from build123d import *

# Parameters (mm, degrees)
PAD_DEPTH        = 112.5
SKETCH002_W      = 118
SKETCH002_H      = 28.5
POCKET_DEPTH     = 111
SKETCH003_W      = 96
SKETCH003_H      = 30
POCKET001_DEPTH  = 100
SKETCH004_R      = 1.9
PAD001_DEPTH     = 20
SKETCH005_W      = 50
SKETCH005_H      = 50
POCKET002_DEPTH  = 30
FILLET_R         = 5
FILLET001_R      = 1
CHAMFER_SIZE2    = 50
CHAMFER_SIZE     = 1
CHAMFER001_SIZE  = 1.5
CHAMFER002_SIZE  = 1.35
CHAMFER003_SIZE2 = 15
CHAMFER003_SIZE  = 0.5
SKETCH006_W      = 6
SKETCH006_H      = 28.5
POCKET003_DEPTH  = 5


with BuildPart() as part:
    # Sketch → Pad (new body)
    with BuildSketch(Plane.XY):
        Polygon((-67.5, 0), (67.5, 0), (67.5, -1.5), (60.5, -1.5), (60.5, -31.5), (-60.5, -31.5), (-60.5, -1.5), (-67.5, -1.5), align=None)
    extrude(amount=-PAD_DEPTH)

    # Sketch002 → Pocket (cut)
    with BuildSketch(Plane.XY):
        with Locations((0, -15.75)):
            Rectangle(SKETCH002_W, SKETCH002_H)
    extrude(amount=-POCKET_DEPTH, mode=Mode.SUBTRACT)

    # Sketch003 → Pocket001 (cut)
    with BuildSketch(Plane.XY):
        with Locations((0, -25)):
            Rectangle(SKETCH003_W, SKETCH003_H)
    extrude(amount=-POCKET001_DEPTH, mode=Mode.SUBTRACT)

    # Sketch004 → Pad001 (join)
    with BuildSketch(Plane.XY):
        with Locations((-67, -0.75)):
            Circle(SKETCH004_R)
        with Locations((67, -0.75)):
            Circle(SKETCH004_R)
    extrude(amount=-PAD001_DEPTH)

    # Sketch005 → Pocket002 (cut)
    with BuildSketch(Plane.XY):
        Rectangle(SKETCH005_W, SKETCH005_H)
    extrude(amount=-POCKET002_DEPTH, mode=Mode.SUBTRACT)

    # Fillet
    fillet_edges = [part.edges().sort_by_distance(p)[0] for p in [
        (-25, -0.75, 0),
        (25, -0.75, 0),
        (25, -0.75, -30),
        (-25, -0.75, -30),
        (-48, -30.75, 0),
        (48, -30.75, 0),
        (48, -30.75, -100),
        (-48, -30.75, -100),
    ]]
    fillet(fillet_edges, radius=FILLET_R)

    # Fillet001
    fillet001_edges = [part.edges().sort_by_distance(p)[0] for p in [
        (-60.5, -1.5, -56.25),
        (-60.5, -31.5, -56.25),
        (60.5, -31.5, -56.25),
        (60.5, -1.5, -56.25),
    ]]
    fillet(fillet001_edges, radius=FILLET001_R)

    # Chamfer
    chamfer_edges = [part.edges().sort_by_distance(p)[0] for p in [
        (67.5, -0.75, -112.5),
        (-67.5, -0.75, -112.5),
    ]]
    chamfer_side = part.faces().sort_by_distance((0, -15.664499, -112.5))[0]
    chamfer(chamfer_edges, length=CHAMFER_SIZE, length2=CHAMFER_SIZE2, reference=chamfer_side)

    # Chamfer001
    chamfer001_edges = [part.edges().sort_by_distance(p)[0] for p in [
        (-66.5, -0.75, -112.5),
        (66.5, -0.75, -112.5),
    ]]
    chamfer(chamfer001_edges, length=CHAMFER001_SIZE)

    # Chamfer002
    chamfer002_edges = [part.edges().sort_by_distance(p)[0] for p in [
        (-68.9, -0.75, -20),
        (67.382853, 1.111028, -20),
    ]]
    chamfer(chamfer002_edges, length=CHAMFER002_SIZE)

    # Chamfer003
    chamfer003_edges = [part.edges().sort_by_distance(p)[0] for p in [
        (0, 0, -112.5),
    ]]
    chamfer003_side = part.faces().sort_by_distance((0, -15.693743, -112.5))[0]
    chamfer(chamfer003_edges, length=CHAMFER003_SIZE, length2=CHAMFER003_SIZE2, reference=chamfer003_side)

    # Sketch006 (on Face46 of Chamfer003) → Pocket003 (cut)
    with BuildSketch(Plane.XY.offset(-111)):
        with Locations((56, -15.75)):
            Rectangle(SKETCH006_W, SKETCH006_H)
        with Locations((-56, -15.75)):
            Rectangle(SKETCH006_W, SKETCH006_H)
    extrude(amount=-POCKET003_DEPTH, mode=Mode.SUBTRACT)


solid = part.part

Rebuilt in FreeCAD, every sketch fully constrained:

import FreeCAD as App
import Part
import Sketcher


def edges_at(feature, points):
    """Names of the edges that pass closest to the given points."""
    edges = feature.Shape.Edges
    near = lambda p: min(range(len(edges)), key=lambda i: edges[i].distToShape(Part.Vertex(*p))[0])
    return sorted({f"Edge{near(p) + 1}" for p in points})

doc = App.newDocument("Part")
params = doc.addObject("Spreadsheet::Sheet", "Params")
for row, (alias, value) in enumerate([
    ("sketch1_width", "135 mm"),
    ("sketch1_width2", "7 mm"),
    ("sketch1_height", "30 mm"),
    ("sketch1_height2", "1.5 mm"),
    ("pad1_length", "112.5 mm"),
    ("sketch2_width", "118 mm"),
    ("sketch2_height", "28.5 mm"),
    ("pocket1_length", "111 mm"),
    ("sketch3_width", "96 mm"),
    ("sketch3_height", "30 mm"),
    ("pocket2_length", "100 mm"),
    ("sketch4_diameter", "3.8 mm"),
    ("pad2_length", "20 mm"),
    ("sketch5_width", "50 mm"),
    ("pocket3_length", "30 mm"),
    ("fillet_radius", "5 mm"),
    ("fillet2_radius", "1 mm"),
    ("chamfer_size", "1 mm"),
    ("chamfer_size2", "50 mm"),
    ("chamfer2_size", "1.5 mm"),
    ("chamfer3_size", "1.35 mm"),
    ("chamfer4_size", "0.5 mm"),
    ("chamfer4_size2", "15 mm"),
    ("sketch6_width", "6 mm"),
    ("sketch6_height", "28.5 mm"),
    ("pocket4_length", "5 mm"),
], start=1):
    params.set(f"A{row}", alias)
    params.set(f"B{row}", "=" + value)
    params.setAlias(f"B{row}", alias)

body = doc.addObject("PartDesign::Body", "Body")

# Sketch on XY plane
sketch1 = doc.addObject("Sketcher::SketchObject", "Sketch")
body.addObject(sketch1)
sketch1.AttachmentSupport = (doc.XY_Plane, [""])
sketch1.MapMode = "FlatFace"
sketch1.addGeometry([
    Part.LineSegment(App.Vector(67.5, 0, 0), App.Vector(-67.5, 0, 0)),  # 0
    Part.LineSegment(App.Vector(-67.5, 0, 0), App.Vector(-67.5, -1.5, 0)),  # 1
    Part.LineSegment(App.Vector(-67.5, -1.5, 0), App.Vector(-60.5, -1.5, 0)),  # 2
    Part.LineSegment(App.Vector(-60.5, -1.5, 0), App.Vector(-60.5, -31.5, 0)),  # 3
    Part.LineSegment(App.Vector(-60.5, -31.5, 0), App.Vector(60.5, -31.5, 0)),  # 4
    Part.LineSegment(App.Vector(60.5, -31.5, 0), App.Vector(60.5, -1.5, 0)),  # 5
    Part.LineSegment(App.Vector(60.5, -1.5, 0), App.Vector(67.5, -1.5, 0)),  # 6
    Part.LineSegment(App.Vector(67.5, -1.5, 0), App.Vector(67.5, 0, 0)),  # 7
], False)
sketch1.addConstraint([
    Sketcher.Constraint("Coincident", 0, 2, 1, 1),
    Sketcher.Constraint("Coincident", 1, 2, 2, 1),
    Sketcher.Constraint("Coincident", 2, 2, 3, 1),
    Sketcher.Constraint("Coincident", 3, 2, 4, 1),
    Sketcher.Constraint("Coincident", 4, 2, 5, 1),
    Sketcher.Constraint("Coincident", 5, 2, 6, 1),
    Sketcher.Constraint("Coincident", 6, 2, 7, 1),
    Sketcher.Constraint("Coincident", 7, 2, 0, 1),
    Sketcher.Constraint("Horizontal", 0),
    Sketcher.Constraint("Vertical", 1),
    Sketcher.Constraint("Horizontal", 2),
    Sketcher.Constraint("Vertical", 3),
    Sketcher.Constraint("Horizontal", 4),
    Sketcher.Constraint("Vertical", 5),
    Sketcher.Constraint("Horizontal", 6),
    Sketcher.Constraint("Vertical", 7),
    Sketcher.Constraint("Symmetric", 0, 2, 7, 2, -1, 1),
    Sketcher.Constraint("Symmetric", 2, 2, 5, 2, -2),
    Sketcher.Constraint("DistanceX", 0, 2, 0, 1, 135.0),
    Sketcher.Constraint("DistanceX", 2, 1, 2, 2, 7.0),
    Sketcher.Constraint("DistanceY", 3, 2, 3, 1, 30.0),
    Sketcher.Constraint("DistanceY", 1, 2, 1, 1, 1.5),
])
sketch1.setExpression("Constraints[18]", "Params.sketch1_width")
sketch1.setExpression("Constraints[19]", "Params.sketch1_width2")
sketch1.setExpression("Constraints[20]", "Params.sketch1_height")
sketch1.setExpression("Constraints[21]", "Params.sketch1_height2")
pad1 = doc.addObject("PartDesign::Pad", "Pad")
body.addObject(pad1)
pad1.Profile = sketch1
pad1.setExpression("Length", "Params.pad1_length")
pad1.Reversed = True

# Sketch on XY plane
sketch2 = doc.addObject("Sketcher::SketchObject", "Sketch001")
body.addObject(sketch2)
sketch2.AttachmentSupport = (doc.XY_Plane, [""])
sketch2.MapMode = "FlatFace"
sketch2.addGeometry([
    Part.LineSegment(App.Vector(-59, -2, 0), App.Vector(-59, -30, 0)),
    Part.LineSegment(App.Vector(-59, -30, 0), App.Vector(59, -30, 0)),
    Part.LineSegment(App.Vector(59, -30, 0), App.Vector(59, -2, 0)),
    Part.LineSegment(App.Vector(59, -2, 0), App.Vector(-59, -2, 0)),
], False)
sketch2.addConstraint([
    Sketcher.Constraint("Coincident", 0, 2, 1, 1),
    Sketcher.Constraint("Coincident", 1, 2, 2, 1),
    Sketcher.Constraint("Coincident", 2, 2, 3, 1),
    Sketcher.Constraint("Coincident", 3, 2, 0, 1),
    Sketcher.Constraint("Vertical", 0),
    Sketcher.Constraint("Horizontal", 1),
    Sketcher.Constraint("Vertical", 2),
    Sketcher.Constraint("Horizontal", 3),
    Sketcher.Constraint("DistanceX", 1, 1, 1, 2, 118.0),
    Sketcher.Constraint("DistanceY", 0, 2, 0, 1, 28.5),
    Sketcher.Constraint("DistanceX", 0, 2, -1, 1, 59.0),
    Sketcher.Constraint("DistanceY", 0, 2, -1, 1, 30.0),
])
sketch2.setExpression("Constraints[8]", "Params.sketch2_width")
sketch2.setExpression("Constraints[9]", "Params.sketch2_height")
pocket1 = doc.addObject("PartDesign::Pocket", "Pocket")
body.addObject(pocket1)
pocket1.Profile = sketch2
pocket1.setExpression("Length", "Params.pocket1_length")

# Sketch on XY plane
sketch3 = doc.addObject("Sketcher::SketchObject", "Sketch002")
body.addObject(sketch3)
sketch3.AttachmentSupport = (doc.XY_Plane, [""])
sketch3.MapMode = "FlatFace"
sketch3.addGeometry([
    Part.LineSegment(App.Vector(-48, -10, 0), App.Vector(-48, -40, 0)),
    Part.LineSegment(App.Vector(-48, -40, 0), App.Vector(48, -40, 0)),
    Part.LineSegment(App.Vector(48, -40, 0), App.Vector(48, -10, 0)),
    Part.LineSegment(App.Vector(48, -10, 0), App.Vector(-48, -10, 0)),
], False)
sketch3.addConstraint([
    Sketcher.Constraint("Coincident", 0, 2, 1, 1),
    Sketcher.Constraint("Coincident", 1, 2, 2, 1),
    Sketcher.Constraint("Coincident", 2, 2, 3, 1),
    Sketcher.Constraint("Coincident", 3, 2, 0, 1),
    Sketcher.Constraint("Vertical", 0),
    Sketcher.Constraint("Horizontal", 1),
    Sketcher.Constraint("Vertical", 2),
    Sketcher.Constraint("Horizontal", 3),
    Sketcher.Constraint("DistanceX", 1, 1, 1, 2, 96.0),
    Sketcher.Constraint("DistanceY", 0, 2, 0, 1, 30.0),
    Sketcher.Constraint("DistanceX", 0, 2, -1, 1, 48.0),
    Sketcher.Constraint("DistanceY", 0, 2, -1, 1, 40.0),
])
sketch3.setExpression("Constraints[8]", "Params.sketch3_width")
sketch3.setExpression("Constraints[9]", "Params.sketch3_height")
pocket2 = doc.addObject("PartDesign::Pocket", "Pocket001")
body.addObject(pocket2)
pocket2.Profile = sketch3
pocket2.setExpression("Length", "Params.pocket2_length")

# Sketch on XY plane
sketch4 = doc.addObject("Sketcher::SketchObject", "Sketch003")
body.addObject(sketch4)
sketch4.AttachmentSupport = (doc.XY_Plane, [""])
sketch4.MapMode = "FlatFace"
sketch4.addGeometry([
    Part.Circle(App.Vector(-67, -0.8, 0), App.Vector(0, 0, 1), 1.9),
    Part.Circle(App.Vector(67, -0.8, 0), App.Vector(0, 0, 1), 1.9),
], False)
sketch4.addConstraint([
    Sketcher.Constraint("Equal", 0, 1),
    Sketcher.Constraint("Symmetric", 0, 3, 1, 3, -2),
    Sketcher.Constraint("Diameter", 0, 3.8),
    Sketcher.Constraint("DistanceX", 0, 3, -1, 1, 67.0),
    Sketcher.Constraint("DistanceY", 0, 3, -1, 1, 0.75),
])
sketch4.setExpression("Constraints[2]", "Params.sketch4_diameter")
pad2 = doc.addObject("PartDesign::Pad", "Pad001")
body.addObject(pad2)
pad2.Profile = sketch4
pad2.setExpression("Length", "Params.pad2_length")
pad2.Reversed = True

# Sketch on XY plane
sketch5 = doc.addObject("Sketcher::SketchObject", "Sketch004")
body.addObject(sketch5)
sketch5.AttachmentSupport = (doc.XY_Plane, [""])
sketch5.MapMode = "FlatFace"
sketch5.addGeometry([
    Part.LineSegment(App.Vector(-25, 25, 0), App.Vector(-25, -25, 0)),
    Part.LineSegment(App.Vector(-25, -25, 0), App.Vector(25, -25, 0)),
    Part.LineSegment(App.Vector(25, -25, 0), App.Vector(25, 25, 0)),
    Part.LineSegment(App.Vector(25, 25, 0), App.Vector(-25, 25, 0)),
], False)
sketch5.addConstraint([
    Sketcher.Constraint("Coincident", 0, 2, 1, 1),
    Sketcher.Constraint("Coincident", 1, 2, 2, 1),
    Sketcher.Constraint("Coincident", 2, 2, 3, 1),
    Sketcher.Constraint("Coincident", 3, 2, 0, 1),
    Sketcher.Constraint("Vertical", 0),
    Sketcher.Constraint("Horizontal", 1),
    Sketcher.Constraint("Vertical", 2),
    Sketcher.Constraint("Horizontal", 3),
    Sketcher.Constraint("Symmetric", 0, 2, 2, 2, -1, 1),
    Sketcher.Constraint("Equal", 3, 0),
    Sketcher.Constraint("DistanceX", 1, 1, 1, 2, 50.0),
])
sketch5.setExpression("Constraints[10]", "Params.sketch5_width")
pocket3 = doc.addObject("PartDesign::Pocket", "Pocket002")
body.addObject(pocket3)
pocket3.Profile = sketch5
pocket3.setExpression("Length", "Params.pocket3_length")
doc.recompute()

fillet = doc.addObject("PartDesign::Fillet", "Fillet")
body.addObject(fillet)
fillet.Base = (pocket3, edges_at(pocket3, [
    (-25, -0.75, 0),
    (25, -0.75, 0),
    (25, -0.75, -30),
    (-25, -0.75, -30),
    (-48, -30.75, 0),
    (48, -30.75, 0),
    (48, -30.75, -100),
    (-48, -30.75, -100),
]))
fillet.setExpression("Radius", "Params.fillet_radius")
doc.recompute()

fillet2 = doc.addObject("PartDesign::Fillet", "Fillet001")
body.addObject(fillet2)
fillet2.Base = (fillet, edges_at(fillet, [
    (-60.5, -1.5, -56.25),
    (-60.5, -31.5, -56.25),
    (60.5, -31.5, -56.25),
    (60.5, -1.5, -56.25),
]))
fillet2.setExpression("Radius", "Params.fillet2_radius")
doc.recompute()

chamfer = doc.addObject("PartDesign::Chamfer", "Chamfer")
body.addObject(chamfer)
chamfer.Base = (fillet2, edges_at(fillet2, [(67.5, -0.75, -112.5), (-67.5, -0.75, -112.5)]))
chamfer.ChamferType = "Two distances"
chamfer.setExpression("Size", "Params.chamfer_size")
chamfer.setExpression("Size2", "Params.chamfer_size2")
doc.recompute()

chamfer2 = doc.addObject("PartDesign::Chamfer", "Chamfer001")
body.addObject(chamfer2)
chamfer2.Base = (chamfer, edges_at(chamfer, [(-66.5, -0.75, -112.5), (66.5, -0.75, -112.5)]))
chamfer2.setExpression("Size", "Params.chamfer2_size")
doc.recompute()

chamfer3 = doc.addObject("PartDesign::Chamfer", "Chamfer002")
body.addObject(chamfer3)
chamfer3.Base = (chamfer2, edges_at(chamfer2, [(-68.9, -0.75, -20), (68.9, -0.75, -20)]))
chamfer3.setExpression("Size", "Params.chamfer3_size")
doc.recompute()

chamfer4 = doc.addObject("PartDesign::Chamfer", "Chamfer003")
body.addObject(chamfer4)
chamfer4.Base = (chamfer3, edges_at(chamfer3, [(0, 0, -112.5)]))
chamfer4.ChamferType = "Two distances"
chamfer4.setExpression("Size", "Params.chamfer4_size")
chamfer4.setExpression("Size2", "Params.chamfer4_size2")

# Sketch on XY plane
sketch6 = doc.addObject("Sketcher::SketchObject", "Sketch005")
body.addObject(sketch6)
sketch6.AttachmentSupport = (doc.XY_Plane, [""])
sketch6.MapMode = "FlatFace"
sketch6.AttachmentOffset = App.Placement(App.Vector(0, 0, -111), App.Rotation())
sketch6.addGeometry([
    Part.LineSegment(App.Vector(53, -2, 0), App.Vector(53, -30, 0)),  # 0
    Part.LineSegment(App.Vector(53, -30, 0), App.Vector(59, -30, 0)),  # 1
    Part.LineSegment(App.Vector(59, -30, 0), App.Vector(59, -2, 0)),  # 2
    Part.LineSegment(App.Vector(59, -2, 0), App.Vector(53, -2, 0)),  # 3
    Part.LineSegment(App.Vector(-59, -2, 0), App.Vector(-59, -30, 0)),  # 4
    Part.LineSegment(App.Vector(-59, -30, 0), App.Vector(-53, -30, 0)),  # 5
    Part.LineSegment(App.Vector(-53, -30, 0), App.Vector(-53, -2, 0)),  # 6
    Part.LineSegment(App.Vector(-53, -2, 0), App.Vector(-59, -2, 0)),  # 7
], False)
sketch6.addConstraint([
    Sketcher.Constraint("Coincident", 0, 2, 1, 1),
    Sketcher.Constraint("Coincident", 1, 2, 2, 1),
    Sketcher.Constraint("Coincident", 2, 2, 3, 1),
    Sketcher.Constraint("Coincident", 3, 2, 0, 1),
    Sketcher.Constraint("Coincident", 4, 2, 5, 1),
    Sketcher.Constraint("Coincident", 5, 2, 6, 1),
    Sketcher.Constraint("Coincident", 6, 2, 7, 1),
    Sketcher.Constraint("Coincident", 7, 2, 4, 1),
    Sketcher.Constraint("Vertical", 0),
    Sketcher.Constraint("Horizontal", 1),
    Sketcher.Constraint("Vertical", 2),
    Sketcher.Constraint("Horizontal", 3),
    Sketcher.Constraint("Vertical", 4),
    Sketcher.Constraint("Horizontal", 5),
    Sketcher.Constraint("Vertical", 6),
    Sketcher.Constraint("Horizontal", 7),
    Sketcher.Constraint("Symmetric", 1, 2, 4, 2, -2),
    Sketcher.Constraint("Symmetric", 3, 2, 6, 2, -2),
    Sketcher.Constraint("DistanceX", 1, 1, 1, 2, 6.0),
    Sketcher.Constraint("DistanceY", 0, 2, 0, 1, 28.5),
    Sketcher.Constraint("DistanceX", -1, 1, 0, 2, 53.0),
    Sketcher.Constraint("DistanceY", 0, 2, -1, 1, 30.0),
])
sketch6.setExpression("Constraints[18]", "Params.sketch6_width")
sketch6.setExpression("Constraints[19]", "Params.sketch6_height")
pocket4 = doc.addObject("PartDesign::Pocket", "Pocket003")
body.addObject(pocket4)
pocket4.Profile = sketch6
pocket4.setExpression("Length", "Params.pocket4_length")

doc.recompute()
